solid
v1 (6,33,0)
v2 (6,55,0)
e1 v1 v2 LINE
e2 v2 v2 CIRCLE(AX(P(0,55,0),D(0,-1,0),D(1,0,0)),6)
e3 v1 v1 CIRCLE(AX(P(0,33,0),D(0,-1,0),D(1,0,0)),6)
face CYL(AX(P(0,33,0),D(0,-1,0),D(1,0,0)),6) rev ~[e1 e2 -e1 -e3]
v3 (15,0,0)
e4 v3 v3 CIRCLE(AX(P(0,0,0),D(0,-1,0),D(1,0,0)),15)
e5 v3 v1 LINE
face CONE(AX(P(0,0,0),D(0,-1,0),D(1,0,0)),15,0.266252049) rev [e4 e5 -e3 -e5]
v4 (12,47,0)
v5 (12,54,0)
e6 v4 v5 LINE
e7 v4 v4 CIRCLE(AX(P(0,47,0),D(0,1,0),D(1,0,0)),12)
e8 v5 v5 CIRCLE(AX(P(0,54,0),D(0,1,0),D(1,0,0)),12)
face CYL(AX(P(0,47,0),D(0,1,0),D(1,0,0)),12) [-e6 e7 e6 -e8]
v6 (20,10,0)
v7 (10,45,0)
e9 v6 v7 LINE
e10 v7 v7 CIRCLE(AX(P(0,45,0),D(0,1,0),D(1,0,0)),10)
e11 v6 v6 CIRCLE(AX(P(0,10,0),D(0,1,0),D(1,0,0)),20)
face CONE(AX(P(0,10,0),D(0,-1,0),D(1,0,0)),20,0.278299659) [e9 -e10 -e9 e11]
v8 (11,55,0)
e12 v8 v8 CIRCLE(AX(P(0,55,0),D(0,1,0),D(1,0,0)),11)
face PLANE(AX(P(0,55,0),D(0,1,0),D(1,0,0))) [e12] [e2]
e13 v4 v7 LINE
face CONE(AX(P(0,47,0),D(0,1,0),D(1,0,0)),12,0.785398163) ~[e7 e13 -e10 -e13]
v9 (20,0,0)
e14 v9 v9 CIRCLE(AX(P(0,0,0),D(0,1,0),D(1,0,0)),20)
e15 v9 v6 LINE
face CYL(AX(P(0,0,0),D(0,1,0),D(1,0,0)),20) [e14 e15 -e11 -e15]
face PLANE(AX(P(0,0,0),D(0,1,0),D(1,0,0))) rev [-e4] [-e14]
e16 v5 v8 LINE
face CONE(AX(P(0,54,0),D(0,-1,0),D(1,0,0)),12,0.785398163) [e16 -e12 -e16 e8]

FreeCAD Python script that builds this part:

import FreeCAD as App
import Part
import Sketcher
from FreeCAD import Vector
Q = App.Units.Quantity

doc = App.newDocument("Part")
body = doc.addObject("PartDesign::Body", "Body")

# Sketch on XY plane
sketch1 = body.newObject("Sketcher::SketchObject", "Sketch")
sketch1.AttachmentSupport = (doc.getObject("XY_Plane"), [""])
sketch1.MapMode = "FlatFace"
sketch1.addGeometry([
    Part.LineSegment(Vector(0, 55, 0), Vector(0, 0, 0)),  # 0
    Part.LineSegment(Vector(0, 0, 0), Vector(20, 0, 0)),  # 1
    Part.LineSegment(Vector(20, 0, 0), Vector(20, 10, 0)),  # 2
    Part.LineSegment(Vector(20, 10, 0), Vector(10, 45, 0)),  # 3
    Part.LineSegment(Vector(10, 45, 0), Vector(12, 47, 0)),  # 4
    Part.LineSegment(Vector(12, 47, 0), Vector(12, 54, 0)),  # 5
    Part.LineSegment(Vector(12, 54, 0), Vector(11, 55, 0)),  # 6
    Part.LineSegment(Vector(11, 55, 0), Vector(0, 55, 0)),  # 7
], False)
sketch1.addConstraint([
    Sketcher.Constraint("Coincident", 0, 2, 1, 1),
    Sketcher.Constraint("Coincident", 1, 2, 2, 1),
    Sketcher.Constraint("Coincident", 2, 2, 3, 1),
    Sketcher.Constraint("Coincident", 3, 2, 4, 1),
    Sketcher.Constraint("Coincident", 4, 2, 5, 1),
    Sketcher.Constraint("Coincident", 5, 2, 6, 1),
    Sketcher.Constraint("Coincident", 6, 2, 7, 1),
    Sketcher.Constraint("Coincident", 7, 2, 0, 1),
    Sketcher.Constraint("Vertical", 0),
    Sketcher.Constraint("Horizontal", 1),
    Sketcher.Constraint("Vertical", 2),
    Sketcher.Constraint("Vertical", 5),
    Sketcher.Constraint("Horizontal", 7),
    Sketcher.Constraint("Coincident", 0, 2, -1, 1),
    Sketcher.Constraint("Perpendicular", 4, 6),
    Sketcher.Constraint("DistanceX", 1, 1, 1, 2, 20.0),
    Sketcher.Constraint("DistanceY", 0, 2, 0, 1, 55.0),
    Sketcher.Constraint("DistanceY", 2, 1, 2, 2, 10.0),
    Sketcher.Constraint("Angle", 4, Q("45 deg")),
    Sketcher.Constraint("DistanceX", -1, 1, 3, 2, 10.0),
    Sketcher.Constraint("DistanceY", -1, 1, 3, 2, 45.0),
    Sketcher.Constraint("DistanceX", 3, 2, 4, 2, 2.0),
    Sketcher.Constraint("DistanceX", 6, 2, 5, 2, 1.0),
])
revolution = body.newObject("PartDesign::Revolution", "Revolution")
revolution.Profile = sketch1
revolution.ReferenceAxis = (sketch1, ["V_Axis"])
revolution.Angle = 360

# Sketch on XY plane
sketch2 = body.newObject("Sketcher::SketchObject", "Sketch001")
sketch2.AttachmentSupport = (doc.getObject("XY_Plane"), [""])
sketch2.MapMode = "FlatFace"
sketch2.addGeometry([
    Part.LineSegment(Vector(0, 33, 0), Vector(0, 0, 0)),
    Part.LineSegment(Vector(0, 0, 0), Vector(15, 0, 0)),
    Part.LineSegment(Vector(15, 0, 0), Vector(6, 33, 0)),
    Part.LineSegment(Vector(6, 33, 0), Vector(0, 33, 0)),
], False)
sketch2.addConstraint([
    Sketcher.Constraint("Coincident", 0, 2, 1, 1),
    Sketcher.Constraint("Coincident", 1, 2, 2, 1),
    Sketcher.Constraint("Coincident", 2, 2, 3, 1),
    Sketcher.Constraint("Coincident", 3, 2, 0, 1),
    Sketcher.Constraint("Vertical", 0),
    Sketcher.Constraint("Horizontal", 1),
    Sketcher.Constraint("Horizontal", 3),
    Sketcher.Constraint("Coincident", 0, 2, -1, 1),
    Sketcher.Constraint("DistanceX", 1, 1, 1, 2, 15.0),
    Sketcher.Constraint("DistanceX", 3, 2, 3, 1, 6.0),
    Sketcher.Constraint("DistanceY", 0, 2, 0, 1, 33.0),
])
groove = body.newObject("PartDesign::Groove", "Groove")
groove.Profile = sketch2
groove.ReferenceAxis = (sketch2, ["V_Axis"])
groove.Angle = 360

# Sketch on XZ plane
sketch3 = body.newObject("Sketcher::SketchObject", "Sketch002")
sketch3.AttachmentSupport = (doc.getObject("XZ_Plane"), [""])
sketch3.MapMode = "FlatFace"
sketch3.AttachmentOffset = App.Placement(Vector(0, 0, -33), App.Rotation())
sketch3.addGeometry(Part.Circle(Vector(0, 0, 0), Vector(0, 0, 1), 6), False)
sketch3.addConstraint([
    Sketcher.Constraint("Coincident", 0, 3, -1, 1),
    Sketcher.Constraint("Diameter", 0, 12.0),
])
pocket1 = body.newObject("PartDesign::Pocket", "Pocket")
pocket1.Profile = sketch3
pocket1.Type = "ThroughAll"

doc.recompute()
